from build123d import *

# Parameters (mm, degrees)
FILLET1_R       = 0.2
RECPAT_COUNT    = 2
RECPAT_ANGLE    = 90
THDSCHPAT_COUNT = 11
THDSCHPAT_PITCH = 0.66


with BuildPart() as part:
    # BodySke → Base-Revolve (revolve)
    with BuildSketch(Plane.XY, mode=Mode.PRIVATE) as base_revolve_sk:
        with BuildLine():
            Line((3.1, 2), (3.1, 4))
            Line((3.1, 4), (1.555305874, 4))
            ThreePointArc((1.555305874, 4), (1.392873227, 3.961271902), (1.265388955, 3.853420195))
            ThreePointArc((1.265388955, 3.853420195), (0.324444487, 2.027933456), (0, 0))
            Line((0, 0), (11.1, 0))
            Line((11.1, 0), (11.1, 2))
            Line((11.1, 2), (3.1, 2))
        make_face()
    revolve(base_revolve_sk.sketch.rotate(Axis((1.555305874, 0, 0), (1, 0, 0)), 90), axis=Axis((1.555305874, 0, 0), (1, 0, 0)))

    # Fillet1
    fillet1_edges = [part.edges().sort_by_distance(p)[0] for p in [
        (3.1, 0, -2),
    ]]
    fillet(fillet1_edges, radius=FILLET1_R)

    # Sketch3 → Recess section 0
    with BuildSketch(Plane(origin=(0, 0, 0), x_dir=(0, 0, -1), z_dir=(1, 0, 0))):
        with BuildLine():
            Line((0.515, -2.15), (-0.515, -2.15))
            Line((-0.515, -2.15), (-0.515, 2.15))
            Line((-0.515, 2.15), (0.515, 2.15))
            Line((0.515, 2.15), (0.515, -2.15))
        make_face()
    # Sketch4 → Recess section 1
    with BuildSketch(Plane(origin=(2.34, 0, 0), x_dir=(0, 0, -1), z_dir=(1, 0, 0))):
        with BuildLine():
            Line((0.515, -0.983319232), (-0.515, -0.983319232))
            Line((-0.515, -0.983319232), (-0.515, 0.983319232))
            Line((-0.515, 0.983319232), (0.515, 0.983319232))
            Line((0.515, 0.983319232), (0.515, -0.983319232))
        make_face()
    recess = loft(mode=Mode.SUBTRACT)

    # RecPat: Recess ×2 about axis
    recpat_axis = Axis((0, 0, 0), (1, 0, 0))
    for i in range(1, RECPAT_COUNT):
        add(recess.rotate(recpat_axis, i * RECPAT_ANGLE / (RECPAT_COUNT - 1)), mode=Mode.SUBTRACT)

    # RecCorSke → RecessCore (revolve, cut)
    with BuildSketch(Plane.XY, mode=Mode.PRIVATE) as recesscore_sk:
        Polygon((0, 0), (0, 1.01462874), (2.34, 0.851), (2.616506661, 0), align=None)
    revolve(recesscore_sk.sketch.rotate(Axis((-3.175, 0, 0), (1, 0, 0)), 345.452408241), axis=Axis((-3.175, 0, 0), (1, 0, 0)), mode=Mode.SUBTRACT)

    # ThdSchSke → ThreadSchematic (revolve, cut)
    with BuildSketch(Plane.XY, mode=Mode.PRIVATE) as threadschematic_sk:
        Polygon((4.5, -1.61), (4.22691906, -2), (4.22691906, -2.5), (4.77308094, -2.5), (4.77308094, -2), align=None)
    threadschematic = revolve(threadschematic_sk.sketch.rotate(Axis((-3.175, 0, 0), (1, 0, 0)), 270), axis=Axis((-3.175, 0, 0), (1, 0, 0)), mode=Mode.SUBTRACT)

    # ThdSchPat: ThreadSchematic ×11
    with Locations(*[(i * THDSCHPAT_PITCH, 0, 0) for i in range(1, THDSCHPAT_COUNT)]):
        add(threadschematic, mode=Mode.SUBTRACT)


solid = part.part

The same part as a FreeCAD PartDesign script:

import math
import FreeCAD as App
import Part
import Sketcher

V = App.Vector
Q = App.Units.Quantity


def edges_at(feature, points):
    """Names of the edges that pass closest to the given points."""
    edges = feature.Shape.Edges
    near = lambda p: min(range(len(edges)), key=lambda i: edges[i].distToShape(Part.Vertex(*p))[0])
    return sorted({f"Edge{near(p) + 1}" for p in points})

doc = App.newDocument("Part")
body = doc.addObject("PartDesign::Body", "Body")

sketch1 = body.newObject("Sketcher::SketchObject", "Sketch")
sketch1.AttachmentSupport = (doc.getObject("XY_Plane"), [""])
sketch1.MapMode = "FlatFace"
sketch1.addGeometry(Part.LineSegment(V(3.1, 2, 0), V(3.1, 4, 0)), False)
sketch1.addGeometry(Part.LineSegment(V(3.1, 4, 0), V(1.56, 4, 0)), False)
sketch1.addGeometry(Part.ArcOfCircle(Part.Circle(V(1.56, 3.64, 0), V(0, 0, 1), 0.36), math.radians(90), math.radians(144)), False)
sketch1.addGeometry(Part.ArcOfCircle(Part.Circle(V(6.5, 0, 0), V(0, 0, 1), 6.5), math.radians(144), math.radians(180)), False)
sketch1.addGeometry(Part.LineSegment(V(0, 0, 0), V(11.1, 0, 0)), False)
sketch1.addGeometry(Part.LineSegment(V(11.1, 0, 0), V(11.1, 2, 0)), False)
sketch1.addGeometry(Part.LineSegment(V(11.1, 2, 0), V(3.1, 2, 0)), False)
sketch1.addConstraint(Sketcher.Constraint("Coincident", 0, 2, 1, 1))
sketch1.addConstraint(Sketcher.Constraint("Tangent", 1, 2, 2, 1))
sketch1.addConstraint(Sketcher.Constraint("Tangent", 2, 2, 3, 1))
sketch1.addConstraint(Sketcher.Constraint("Coincident", 3, 2, 4, 1))
sketch1.addConstraint(Sketcher.Constraint("Coincident", 4, 2, 5, 1))
sketch1.addConstraint(Sketcher.Constraint("Coincident", 5, 2, 6, 1))
sketch1.addConstraint(Sketcher.Constraint("Coincident", 6, 2, 0, 1))
sketch1.addConstraint(Sketcher.Constraint("Vertical", 0))
sketch1.addConstraint(Sketcher.Constraint("Horizontal", 1))
sketch1.addConstraint(Sketcher.Constraint("Horizontal", 4))
sketch1.addConstraint(Sketcher.Constraint("Vertical", 5))
sketch1.addConstraint(Sketcher.Constraint("Horizontal", 6))
sketch1.addConstraint(Sketcher.Constraint("Coincident", 3, 2, -1, 1))
sketch1.addConstraint(Sketcher.Constraint("PointOnObject", 3, 3, -1))
sketch1.addConstraint(Sketcher.Constraint("Equal", 0, 5))
sketch1.addConstraint(Sketcher.Constraint("Radius", 3, Q("6.5 mm")))
sketch1.addConstraint(Sketcher.Constraint("DistanceX", 6, 2, 6, 1, Q("8 mm")))
sketch1.addConstraint(Sketcher.Constraint("DistanceY", 0, 1, 0, 2, Q("2 mm")))
sketch1.addConstraint(Sketcher.Constraint("Radius", 2, Q("0.36 mm")))
sketch1.addConstraint(Sketcher.Constraint("DistanceX", 4, 1, 4, 2, Q("11.1 mm")))
revolution = body.newObject("PartDesign::Revolution", "Revolution")
revolution.Profile = sketch1
revolution.ReferenceAxis = (sketch1, ["H_Axis"])
revolution.Angle = 360
doc.recompute()

fillet = body.newObject("PartDesign::Fillet", "Fillet")
fillet.Base = (revolution, edges_at(revolution, [(3.1, 0, -2)]))
fillet.Radius = 0.2

sketch2 = body.newObject("Sketcher::SketchObject", "Sketch001")
sketch2.AttachmentSupport = (doc.getObject("YZ_Plane"), [""])
sketch2.MapMode = "FlatFace"
sketch2.addGeometry(Part.LineSegment(V(-2.1, 0.5, 0), V(-2.1, -0.5, 0)), False)
sketch2.addGeometry(Part.LineSegment(V(-2.1, -0.5, 0), V(2.1, -0.5, 0)), False)
sketch2.addGeometry(Part.LineSegment(V(2.1, -0.5, 0), V(2.1, 0.5, 0)), False)
sketch2.addGeometry(Part.LineSegment(V(2.1, 0.5, 0), V(-2.1, 0.5, 0)), False)
sketch2.addConstraint(Sketcher.Constraint("Coincident", 0, 2, 1, 1))
sketch2.addConstraint(Sketcher.Constraint("Coincident", 1, 2, 2, 1))
sketch2.addConstraint(Sketcher.Constraint("Coincident", 2, 2, 3, 1))
sketch2.addConstraint(Sketcher.Constraint("Coincident", 3, 2, 0, 1))
sketch2.addConstraint(Sketcher.Constraint("Vertical", 0))
sketch2.addConstraint(Sketcher.Constraint("Horizontal", 1))
sketch2.addConstraint(Sketcher.Constraint("Vertical", 2))
sketch2.addConstraint(Sketcher.Constraint("Horizontal", 3))
sketch2.addConstraint(Sketcher.Constraint("Symmetric", 0, 2, 2, 2, -1, 1))
sketch2.addConstraint(Sketcher.Constraint("DistanceX", 1, 1, 1, 2, Q("4.3 mm")))
sketch2.addConstraint(Sketcher.Constraint("DistanceY", 0, 2, 0, 1, Q("1.03 mm")))

sketch3 = body.newObject("Sketcher::SketchObject", "Sketch002")
sketch3.AttachmentSupport = (doc.getObject("YZ_Plane"), [""])
sketch3.MapMode = "FlatFace"
sketch3.AttachmentOffset = App.Placement(V(0, 0, 2.34), App.Rotation())
sketch3.addGeometry(Part.LineSegment(V(-1, 0.5, 0), V(-1, -0.5, 0)), False)
sketch3.addGeometry(Part.LineSegment(V(-1, -0.5, 0), V(1, -0.5, 0)), False)
sketch3.addGeometry(Part.LineSegment(V(1, -0.5, 0), V(1, 0.5, 0)), False)
sketch3.addGeometry(Part.LineSegment(V(1, 0.5, 0), V(-1, 0.5, 0)), False)
sketch3.addConstraint(Sketcher.Constraint("Coincident", 0, 2, 1, 1))
sketch3.addConstraint(Sketcher.Constraint("Coincident", 1, 2, 2, 1))
sketch3.addConstraint(Sketcher.Constraint("Coincident", 2, 2, 3, 1))
sketch3.addConstraint(Sketcher.Constraint("Coincident", 3, 2, 0, 1))
sketch3.addConstraint(Sketcher.Constraint("Vertical", 0))
sketch3.addConstraint(Sketcher.Constraint("Horizontal", 1))
sketch3.addConstraint(Sketcher.Constraint("Vertical", 2))
sketch3.addConstraint(Sketcher.Constraint("Horizontal", 3))
sketch3.addConstraint(Sketcher.Constraint("Symmetric", 0, 2, 2, 2, -1, 1))
sketch3.addConstraint(Sketcher.Constraint("DistanceY", 0, 2, 0, 1, Q("1.03 mm")))
sketch3.addConstraint(Sketcher.Constraint("DistanceX", 1, 1, 1, 2, Q("1.966638 mm")))

subtractiveloft = body.newObject("PartDesign::SubtractiveLoft", "SubtractiveLoft")
subtractiveloft.Profile = sketch2
subtractiveloft.Sections = [sketch3]
doc.recompute()

polarpattern = body.newObject("PartDesign::PolarPattern", "PolarPattern")
polarpattern.Originals = [subtractiveloft]
polarpattern.Axis = (doc.getObject("X_Axis"), [""])
polarpattern.Angle = 90
polarpattern.Occurrences = 2
body.Tip = polarpattern

sketch4 = body.newObject("Sketcher::SketchObject", "Sketch003")
sketch4.AttachmentSupport = (doc.getObject("XY_Plane"), [""])
sketch4.MapMode = "FlatFace"
sketch4.addGeometry(Part.LineSegment(V(0, 1, 0), V(0, 0, 0)), False)
sketch4.addGeometry(Part.LineSegment(V(0, 0, 0), V(2.6, 0, 0)), False)
sketch4.addGeometry(Part.LineSegment(V(2.6, 0, 0), V(2.3, 0.9, 0)), False)
sketch4.addGeometry(Part.LineSegment(V(2.3, 0.9, 0), V(0, 1, 0)), False)
sketch4.addConstraint(Sketcher.Constraint("Coincident", 0, 2, 1, 1))
sketch4.addConstraint(Sketcher.Constraint("Coincident", 1, 2, 2, 1))
sketch4.addConstraint(Sketcher.Constraint("Coincident", 2, 2, 3, 1))
sketch4.addConstraint(Sketcher.Constraint("Coincident", 3, 2, 0, 1))
sketch4.addConstraint(Sketcher.Constraint("Vertical", 0))
sketch4.addConstraint(Sketcher.Constraint("Horizontal", 1))
sketch4.addConstraint(Sketcher.Constraint("Coincident", 0, 2, -1, 1))
sketch4.addConstraint(Sketcher.Constraint("Angle", 2, Q("108 deg")))
sketch4.addConstraint(Sketcher.Constraint("Angle", 3, Q("176 deg")))
sketch4.addConstraint(Sketcher.Constraint("DistanceX", -1, 1, 2, 2, Q("2.34 mm")))
sketch4.addConstraint(Sketcher.Constraint("DistanceY", -1, 1, 2, 2, Q("0.851 mm")))
groove = body.newObject("PartDesign::Groove", "Groove")
groove.Profile = sketch4
groove.ReferenceAxis = (sketch4, ["H_Axis"])
groove.Angle = 360

sketch5 = body.newObject("Sketcher::SketchObject", "Sketch004")
sketch5.AttachmentSupport = (doc.getObject("XY_Plane"), [""])
sketch5.MapMode = "FlatFace"
sketch5.addGeometry(Part.LineSegment(V(4.5, -1.61, 0), V(4.23, -2, 0)), False)
sketch5.addGeometry(Part.LineSegment(V(4.23, -2, 0), V(4.23, -2.5, 0)), False)
sketch5.addGeometry(Part.LineSegment(V(4.23, -2.5, 0), V(4.77, -2.5, 0)), False)
sketch5.addGeometry(Part.LineSegment(V(4.77, -2.5, 0), V(4.77, -2, 0)), False)
sketch5.addGeometry(Part.LineSegment(V(4.77, -2, 0), V(4.5, -1.61, 0)), False)
sketch5.addConstraint(Sketcher.Constraint("Coincident", 0, 2, 1, 1))
sketch5.addConstraint(Sketcher.Constraint("Coincident", 1, 2, 2, 1))
sketch5.addConstraint(Sketcher.Constraint("Coincident", 2, 2, 3, 1))
sketch5.addConstraint(Sketcher.Constraint("Coincident", 3, 2, 4, 1))
sketch5.addConstraint(Sketcher.Constraint("Coincident", 4, 2, 0, 1))
sketch5.addConstraint(Sketcher.Constraint("Vertical", 1))
sketch5.addConstraint(Sketcher.Constraint("Horizontal", 2))
sketch5.addConstraint(Sketcher.Constraint("Vertical", 3))
sketch5.addConstraint(Sketcher.Constraint("Horizontal", 0, 2, 3, 2))
sketch5.addConstraint(Sketcher.Constraint("Equal", 0, 4))
sketch5.addConstraint(Sketcher.Constraint("Angle", 0, Q("-125 deg")))
sketch5.addConstraint(Sketcher.Constraint("DistanceY", 1, 2, 1, 1, Q("0.5 mm")))
sketch5.addConstraint(Sketcher.Constraint("DistanceY", 0, 2, -1, 1, Q("2 mm")))
sketch5.addConstraint(Sketcher.Constraint("DistanceX", -1, 1, 4, 2, Q("4.5 mm")))
sketch5.addConstraint(Sketcher.Constraint("DistanceY", 4, 2, -1, 1, Q("1.61 mm")))
groove2 = body.newObject("PartDesign::Groove", "Groove001")
groove2.Profile = sketch5
groove2.ReferenceAxis = (sketch5, ["H_Axis"])
groove2.Angle = 360
doc.recompute()

linearpattern = body.newObject("PartDesign::LinearPattern", "LinearPattern")
linearpattern.Originals = [groove2]
linearpattern.Direction = (doc.getObject("X_Axis"), [""])
linearpattern.Mode = "offset"
linearpattern.Offset = 0.66
linearpattern.Occurrences = 11
body.Tip = linearpattern

doc.recompute()
